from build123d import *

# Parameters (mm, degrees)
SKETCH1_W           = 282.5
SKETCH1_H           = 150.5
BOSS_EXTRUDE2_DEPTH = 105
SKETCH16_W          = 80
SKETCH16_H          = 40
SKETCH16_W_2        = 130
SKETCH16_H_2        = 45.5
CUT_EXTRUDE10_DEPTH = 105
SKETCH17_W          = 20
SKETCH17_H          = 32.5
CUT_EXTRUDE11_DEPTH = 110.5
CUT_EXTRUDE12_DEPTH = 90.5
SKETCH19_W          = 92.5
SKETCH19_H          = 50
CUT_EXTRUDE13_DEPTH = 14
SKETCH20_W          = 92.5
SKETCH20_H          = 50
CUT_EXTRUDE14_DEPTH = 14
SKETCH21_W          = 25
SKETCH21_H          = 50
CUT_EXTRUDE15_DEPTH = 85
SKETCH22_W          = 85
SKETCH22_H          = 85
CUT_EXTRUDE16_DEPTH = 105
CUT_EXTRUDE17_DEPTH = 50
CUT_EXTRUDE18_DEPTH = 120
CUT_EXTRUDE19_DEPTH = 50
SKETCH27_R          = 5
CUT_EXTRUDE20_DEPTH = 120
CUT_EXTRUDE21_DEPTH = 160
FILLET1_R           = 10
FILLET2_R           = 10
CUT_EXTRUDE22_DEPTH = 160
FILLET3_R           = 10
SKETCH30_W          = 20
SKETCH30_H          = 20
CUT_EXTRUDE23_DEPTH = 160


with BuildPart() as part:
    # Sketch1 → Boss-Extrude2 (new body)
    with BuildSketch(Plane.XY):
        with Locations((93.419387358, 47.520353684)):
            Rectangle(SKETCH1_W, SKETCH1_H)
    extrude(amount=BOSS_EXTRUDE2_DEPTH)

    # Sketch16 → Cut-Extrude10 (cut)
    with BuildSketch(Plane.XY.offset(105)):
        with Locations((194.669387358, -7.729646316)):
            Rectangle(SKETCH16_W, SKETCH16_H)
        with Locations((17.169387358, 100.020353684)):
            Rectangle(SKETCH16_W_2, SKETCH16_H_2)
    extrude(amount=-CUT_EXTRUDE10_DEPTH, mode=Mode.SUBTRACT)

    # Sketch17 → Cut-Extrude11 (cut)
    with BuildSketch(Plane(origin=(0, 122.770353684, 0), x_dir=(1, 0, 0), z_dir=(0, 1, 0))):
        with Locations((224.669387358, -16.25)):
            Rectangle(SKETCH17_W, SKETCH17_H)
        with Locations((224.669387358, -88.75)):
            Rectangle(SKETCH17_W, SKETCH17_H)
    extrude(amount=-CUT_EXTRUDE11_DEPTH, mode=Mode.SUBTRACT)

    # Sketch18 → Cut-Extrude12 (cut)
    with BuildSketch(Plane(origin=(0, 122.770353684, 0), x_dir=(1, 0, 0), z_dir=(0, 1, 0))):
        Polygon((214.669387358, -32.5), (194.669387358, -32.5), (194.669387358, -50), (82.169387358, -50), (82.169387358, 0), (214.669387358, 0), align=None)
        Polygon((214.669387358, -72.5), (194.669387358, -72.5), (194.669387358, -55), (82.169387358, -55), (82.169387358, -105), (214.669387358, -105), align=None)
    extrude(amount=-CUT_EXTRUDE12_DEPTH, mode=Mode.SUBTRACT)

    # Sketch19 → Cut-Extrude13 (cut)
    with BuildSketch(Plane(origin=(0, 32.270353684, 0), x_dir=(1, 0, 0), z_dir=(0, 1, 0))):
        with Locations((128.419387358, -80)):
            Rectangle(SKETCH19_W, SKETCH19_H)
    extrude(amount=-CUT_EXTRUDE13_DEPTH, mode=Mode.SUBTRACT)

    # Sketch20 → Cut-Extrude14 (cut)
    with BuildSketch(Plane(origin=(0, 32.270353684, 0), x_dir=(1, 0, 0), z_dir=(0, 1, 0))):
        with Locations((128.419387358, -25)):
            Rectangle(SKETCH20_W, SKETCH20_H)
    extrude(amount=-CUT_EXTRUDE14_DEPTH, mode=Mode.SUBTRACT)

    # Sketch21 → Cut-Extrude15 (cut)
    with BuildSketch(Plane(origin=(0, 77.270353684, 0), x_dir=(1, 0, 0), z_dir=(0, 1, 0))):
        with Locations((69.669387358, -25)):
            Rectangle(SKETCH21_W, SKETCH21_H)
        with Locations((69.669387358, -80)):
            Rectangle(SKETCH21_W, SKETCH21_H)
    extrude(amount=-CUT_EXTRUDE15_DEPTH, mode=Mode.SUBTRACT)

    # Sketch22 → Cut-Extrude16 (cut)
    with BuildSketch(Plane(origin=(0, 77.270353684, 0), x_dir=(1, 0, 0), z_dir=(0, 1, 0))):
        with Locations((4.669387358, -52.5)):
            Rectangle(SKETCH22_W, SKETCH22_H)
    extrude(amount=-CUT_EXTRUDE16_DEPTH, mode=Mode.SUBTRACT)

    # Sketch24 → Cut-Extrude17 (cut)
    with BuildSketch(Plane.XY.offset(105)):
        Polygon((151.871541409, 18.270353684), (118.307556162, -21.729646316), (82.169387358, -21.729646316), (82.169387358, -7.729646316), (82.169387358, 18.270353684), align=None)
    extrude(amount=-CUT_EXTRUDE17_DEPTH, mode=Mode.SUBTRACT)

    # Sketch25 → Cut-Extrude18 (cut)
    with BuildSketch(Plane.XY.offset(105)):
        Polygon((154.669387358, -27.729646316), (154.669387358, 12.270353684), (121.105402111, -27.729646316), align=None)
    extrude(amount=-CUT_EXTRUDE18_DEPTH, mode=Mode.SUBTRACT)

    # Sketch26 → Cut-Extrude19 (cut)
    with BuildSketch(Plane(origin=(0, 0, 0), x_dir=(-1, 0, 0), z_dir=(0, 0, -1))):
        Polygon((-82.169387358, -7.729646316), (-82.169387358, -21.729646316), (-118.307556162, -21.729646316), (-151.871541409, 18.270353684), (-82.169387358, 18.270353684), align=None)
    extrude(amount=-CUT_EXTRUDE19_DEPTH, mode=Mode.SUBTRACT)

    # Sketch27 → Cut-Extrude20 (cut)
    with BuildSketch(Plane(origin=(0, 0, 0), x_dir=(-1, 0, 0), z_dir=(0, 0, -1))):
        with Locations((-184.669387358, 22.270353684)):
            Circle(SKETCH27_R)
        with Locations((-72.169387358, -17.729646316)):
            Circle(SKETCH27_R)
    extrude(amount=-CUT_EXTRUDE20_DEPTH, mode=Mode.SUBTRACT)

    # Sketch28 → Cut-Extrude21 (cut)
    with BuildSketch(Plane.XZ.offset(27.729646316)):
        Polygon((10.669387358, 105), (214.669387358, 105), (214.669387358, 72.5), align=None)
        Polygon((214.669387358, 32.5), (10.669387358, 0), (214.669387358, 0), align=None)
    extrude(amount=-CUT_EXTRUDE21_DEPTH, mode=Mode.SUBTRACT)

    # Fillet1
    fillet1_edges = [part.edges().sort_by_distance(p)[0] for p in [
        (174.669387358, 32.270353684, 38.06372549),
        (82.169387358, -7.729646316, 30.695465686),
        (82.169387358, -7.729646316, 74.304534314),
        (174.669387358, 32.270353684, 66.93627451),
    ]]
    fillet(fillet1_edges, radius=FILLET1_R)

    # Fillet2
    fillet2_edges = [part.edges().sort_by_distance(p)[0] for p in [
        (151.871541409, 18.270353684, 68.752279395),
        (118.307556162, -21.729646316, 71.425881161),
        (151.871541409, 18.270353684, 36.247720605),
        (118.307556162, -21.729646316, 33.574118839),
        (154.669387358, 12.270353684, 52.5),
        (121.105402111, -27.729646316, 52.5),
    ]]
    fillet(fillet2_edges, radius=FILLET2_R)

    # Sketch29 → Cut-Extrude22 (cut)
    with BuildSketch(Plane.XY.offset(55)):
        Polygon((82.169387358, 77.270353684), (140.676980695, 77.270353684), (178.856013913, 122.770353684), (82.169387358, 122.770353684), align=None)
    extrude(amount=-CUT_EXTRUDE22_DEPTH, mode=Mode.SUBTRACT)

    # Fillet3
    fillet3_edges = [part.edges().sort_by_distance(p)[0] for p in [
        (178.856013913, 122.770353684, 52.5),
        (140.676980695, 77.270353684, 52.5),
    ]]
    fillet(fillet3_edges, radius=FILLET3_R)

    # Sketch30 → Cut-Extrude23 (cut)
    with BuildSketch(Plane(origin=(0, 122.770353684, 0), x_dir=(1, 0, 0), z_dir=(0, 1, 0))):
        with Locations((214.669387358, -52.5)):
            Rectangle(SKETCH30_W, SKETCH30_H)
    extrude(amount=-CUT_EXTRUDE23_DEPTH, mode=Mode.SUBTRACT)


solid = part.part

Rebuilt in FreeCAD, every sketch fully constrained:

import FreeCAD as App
import Part
import Sketcher
Q = App.Units.Quantity


def edges_at(feature, points):
    """Names of the edges that pass closest to the given points."""
    edges = feature.Shape.Edges
    near = lambda p: min(range(len(edges)), key=lambda i: edges[i].distToShape(Part.Vertex(*p))[0])
    return sorted({f"Edge{near(p) + 1}" for p in points})


def add_polygon(sketch, points):
    """Adds a closed chain of lines whose ends are joined by coincident constraints."""
    first, n = sketch.GeometryCount, len(points)
    for a, b in zip(points, points[1:] + points[:1]):
        sketch.addGeometry(Part.LineSegment(App.Vector(*a, 0), App.Vector(*b, 0)), False)
    for i in range(n):
        sketch.addConstraint(Sketcher.Constraint("Coincident", first + i, 2, first + (i + 1) % n, 1))

doc = App.newDocument("Part")
params = doc.addObject("Spreadsheet::Sheet", "Params")
for row, (alias, value) in enumerate([
    ("sketch1_width", "282.5 mm"),
    ("sketch1_height", "150.5 mm"),
    ("pad1_length", "105 mm"),
    ("sketch2_width", "80 mm"),
    ("sketch2_width2", "130 mm"),
    ("sketch2_height", "40 mm"),
    ("sketch2_height2", "45.5 mm"),
    ("pocket1_length", "105 mm"),
    ("sketch3_width", "20 mm"),
    ("sketch3_height", "32.5 mm"),
    ("pocket2_length", "110.5 mm"),
    ("sketch4_width", "20 mm"),
    ("sketch4_height", "50 mm"),
    ("sketch4_width2", "132.5 mm"),
    ("sketch4_height2", "32.5 mm"),
    ("pocket3_length", "90.5 mm"),
    ("sketch5_height", "50 mm"),
    ("sketch5_width", "92.5 mm"),
    ("pocket4_length", "14 mm"),
    ("sketch6_height", "50 mm"),
    ("sketch6_width", "92.5 mm"),
    ("pocket5_length", "14 mm"),
    ("sketch7_width", "25 mm"),
    ("sketch7_height", "50 mm"),
    ("pocket6_length", "85 mm"),
    ("sketch8_width", "85 mm"),
    ("pocket7_length", "105 mm"),
    ("sketch9_height", "40 mm"),
    ("pocket8_length", "50 mm"),
    ("sketch10_height", "40 mm"),
    ("pocket9_length", "120 mm"),
    ("sketch11_height", "40 mm"),
    ("pocket10_length", "50 mm"),
    ("sketch12_diameter", "10 mm"),
    ("pocket11_length", "120 mm"),
    ("sketch13_width", "204 mm"),
    ("sketch13_height", "32.5 mm"),
    ("pocket12_length", "160 mm"),
    ("fillet_radius", "10 mm"),
    ("fillet2_radius", "10 mm"),
    ("sketch14_height", "45.5 mm"),
    ("pocket13_length", "160 mm"),
    ("fillet3_radius", "10 mm"),
    ("sketch15_width", "20 mm"),
    ("pocket14_length", "160 mm"),
], start=1):
    params.set(f"A{row}", alias)
    params.set(f"B{row}", "=" + value)
    params.setAlias(f"B{row}", alias)

body = doc.addObject("PartDesign::Body", "Body")

# Sketch on XY plane
sketch1 = body.newObject("Sketcher::SketchObject", "Sketch")
sketch1.AttachmentSupport = (doc.getObject("XY_Plane"), [""])
sketch1.MapMode = "FlatFace"
add_polygon(sketch1, [(-47.830613, 122.770354), (-47.830613, -27.729646), (234.669387, -27.729646), (234.669387, 122.770354)])  # lines 0-3
sketch1.addConstraint([
    Sketcher.Constraint("Vertical", 0),
    Sketcher.Constraint("Horizontal", 1),
    Sketcher.Constraint("Vertical", 2),
    Sketcher.Constraint("Horizontal", 3),
    Sketcher.Constraint("DistanceX", 1, 1, 1, 2, 282.5),
    Sketcher.Constraint("DistanceY", 0, 2, 0, 1, 150.5),
    Sketcher.Constraint("DistanceX", 0, 2, -1, 1, 47.830613),
    Sketcher.Constraint("DistanceY", 0, 2, -1, 1, 27.729646),
])
sketch1.setExpression("Constraints[8]", "Params.sketch1_width")
sketch1.setExpression("Constraints[9]", "Params.sketch1_height")
pad1 = body.newObject("PartDesign::Pad", "Pad")
pad1.Profile = sketch1
pad1.setExpression("Length", "Params.pad1_length")

# Sketch on XY plane
sketch2 = body.newObject("Sketcher::SketchObject", "Sketch001")
sketch2.AttachmentSupport = (doc.getObject("XY_Plane"), [""])
sketch2.MapMode = "FlatFace"
sketch2.AttachmentOffset = App.Placement(App.Vector(0, 0, 105), App.Rotation())
add_polygon(sketch2, [(154.669387, 12.270354), (154.669387, -27.729646), (234.669387, -27.729646), (234.669387, 12.270354)])  # lines 0-3
add_polygon(sketch2, [(-47.830613, 122.770354), (-47.830613, 77.270354), (82.169387, 77.270354), (82.169387, 122.770354)])  # lines 4-7
sketch2.addConstraint([
    Sketcher.Constraint("Vertical", 0),
    Sketcher.Constraint("Horizontal", 1),
    Sketcher.Constraint("Vertical", 2),
    Sketcher.Constraint("Horizontal", 3),
    Sketcher.Constraint("Vertical", 4),
    Sketcher.Constraint("Horizontal", 5),
    Sketcher.Constraint("Vertical", 6),
    Sketcher.Constraint("Horizontal", 7),
    Sketcher.Constraint("DistanceX", 1, 1, 1, 2, 80.0),
    Sketcher.Constraint("DistanceX", 5, 1, 5, 2, 130.0),
    Sketcher.Constraint("DistanceY", 0, 2, 0, 1, 40.0),
    Sketcher.Constraint("DistanceY", 4, 2, 4, 1, 45.5),
    Sketcher.Constraint("DistanceY", 3, 2, 4, 2, 65.0),
    Sketcher.Constraint("DistanceX", 4, 2, 3, 2, 202.5),
    Sketcher.Constraint("DistanceX", -1, 1, 0, 2, 154.669387),
    Sketcher.Constraint("DistanceY", 0, 2, -1, 1, 27.729646),
])
sketch2.setExpression("Constraints[16]", "Params.sketch2_width")
sketch2.setExpression("Constraints[17]", "Params.sketch2_width2")
sketch2.setExpression("Constraints[18]", "Params.sketch2_height")
sketch2.setExpression("Constraints[19]", "Params.sketch2_height2")
pocket1 = body.newObject("PartDesign::Pocket", "Pocket")
pocket1.Profile = sketch2
pocket1.setExpression("Length", "Params.pocket1_length")

# Sketch on XZ plane
sketch3 = body.newObject("Sketcher::SketchObject", "Sketch002")
sketch3.AttachmentSupport = (doc.getObject("XZ_Plane"), [""])
sketch3.MapMode = "FlatFace"
sketch3.AttachmentOffset = App.Placement(App.Vector(0, 0, -122.770354), App.Rotation())
add_polygon(sketch3, [(214.669387, 0), (214.669387, 32.5), (234.669387, 32.5), (234.669387, 0)])  # lines 0-3
add_polygon(sketch3, [(214.669387, 72.5), (214.669387, 105), (234.669387, 105), (234.669387, 72.5)])  # lines 4-7
sketch3.addConstraint([
    Sketcher.Constraint("Vertical", 0),
    Sketcher.Constraint("Horizontal", 1),
    Sketcher.Constraint("Vertical", 2),
    Sketcher.Constraint("Horizontal", 3),
    Sketcher.Constraint("Vertical", 4),
    Sketcher.Constraint("Horizontal", 5),
    Sketcher.Constraint("Vertical", 6),
    Sketcher.Constraint("Horizontal", 7),
    Sketcher.Constraint("PointOnObject", 2, 2, -1),
    Sketcher.Constraint("Vertical", 3, 2, 4, 2),
    Sketcher.Constraint("Vertical", 2, 2, 5, 2),
    Sketcher.Constraint("Equal", 2, 4),
    Sketcher.Constraint("DistanceX", 1, 1, 1, 2, 20.0),
    Sketcher.Constraint("DistanceY", 0, 1, 0, 2, 32.5),
    Sketcher.Constraint("DistanceY", -1, 1, 4, 2, 105.0),
    Sketcher.Constraint("DistanceX", -1, 1, 0, 2, 214.669387),
])
sketch3.setExpression("Constraints[20]", "Params.sketch3_width")
sketch3.setExpression("Constraints[21]", "Params.sketch3_height")
pocket2 = body.newObject("PartDesign::Pocket", "Pocket001")
pocket2.Profile = sketch3
pocket2.setExpression("Length", "Params.pocket2_length")
pocket2.Reversed = True

# Sketch on XZ plane
sketch4 = body.newObject("Sketcher::SketchObject", "Sketch003")
sketch4.AttachmentSupport = (doc.getObject("XZ_Plane"), [""])
sketch4.MapMode = "FlatFace"
sketch4.AttachmentOffset = App.Placement(App.Vector(0, 0, -122.770354), App.Rotation())
add_polygon(sketch4, [(194.669387, 32.5), (214.669387, 32.5), (214.669387, 0), (82.169387, 0), (82.169387, 50), (194.669387, 50)])  # lines 0-5
add_polygon(sketch4, [(214.669387, 72.5), (194.669387, 72.5), (194.669387, 55), (82.169387, 55), (82.169387, 105), (214.669387, 105)])  # lines 6-11
sketch4.addConstraint([
    Sketcher.Constraint("Horizontal", 0),
    Sketcher.Constraint("Vertical", 1),
    Sketcher.Constraint("Horizontal", 2),
    Sketcher.Constraint("Vertical", 3),
    Sketcher.Constraint("Horizontal", 4),
    Sketcher.Constraint("Vertical", 5),
    Sketcher.Constraint("Horizontal", 6),
    Sketcher.Constraint("Vertical", 7),
    Sketcher.Constraint("Horizontal", 8),
    Sketcher.Constraint("Vertical", 9),
    Sketcher.Constraint("Horizontal", 10),
    Sketcher.Constraint("Vertical", 11),
    Sketcher.Constraint("PointOnObject", 1, 2, -1),
    Sketcher.Constraint("Vertical", 5, 2, 6, 2),
    Sketcher.Constraint("Vertical", 3, 2, 8, 2),
    Sketcher.Constraint("Vertical", 1, 2, 10, 2),
    Sketcher.Constraint("Equal", 5, 7),
    Sketcher.Constraint("Equal", 3, 9),
    Sketcher.Constraint("DistanceX", 0, 1, 0, 2, 20.0),
    Sketcher.Constraint("DistanceY", 3, 1, 3, 2, 50.0),
    Sketcher.Constraint("DistanceX", 2, 2, 2, 1, 132.5),
    Sketcher.Constraint("DistanceY", 1, 2, 1, 1, 32.5),
    Sketcher.Constraint("DistanceY", -1, 1, 7, 2, 55.0),
    Sketcher.Constraint("DistanceX", -1, 1, 0, 2, 214.669387),
])
sketch4.setExpression("Constraints[30]", "Params.sketch4_width")
sketch4.setExpression("Constraints[31]", "Params.sketch4_height")
sketch4.setExpression("Constraints[32]", "Params.sketch4_width2")
sketch4.setExpression("Constraints[33]", "Params.sketch4_height2")
pocket3 = body.newObject("PartDesign::Pocket", "Pocket002")
pocket3.Profile = sketch4
pocket3.setExpression("Length", "Params.pocket3_length")
pocket3.Reversed = True

# Sketch on XZ plane
sketch5 = body.newObject("Sketcher::SketchObject", "Sketch004")
sketch5.AttachmentSupport = (doc.getObject("XZ_Plane"), [""])
sketch5.MapMode = "FlatFace"
sketch5.AttachmentOffset = App.Placement(App.Vector(0, 0, -32.270354), App.Rotation())
add_polygon(sketch5, [(82.169387, 55), (82.169387, 105), (174.669387, 105), (174.669387, 55)])  # lines 0-3
sketch5.addConstraint([
    Sketcher.Constraint("Vertical", 0),
    Sketcher.Constraint("Horizontal", 1),
    Sketcher.Constraint("Vertical", 2),
    Sketcher.Constraint("Horizontal", 3),
    Sketcher.Constraint("DistanceY", 0, 1, 0, 2, 50.0),
    Sketcher.Constraint("DistanceX", 1, 1, 1, 2, 92.5),
    Sketcher.Constraint("DistanceY", -1, 1, 0, 2, 105.0),
    Sketcher.Constraint("DistanceX", -1, 1, 0, 2, 82.169387),
])
sketch5.setExpression("Constraints[8]", "Params.sketch5_height")
sketch5.setExpression("Constraints[9]", "Params.sketch5_width")
pocket4 = body.newObject("PartDesign::Pocket", "Pocket003")
pocket4.Profile = sketch5
pocket4.setExpression("Length", "Params.pocket4_length")
pocket4.Reversed = True

# Sketch on XZ plane
sketch6 = body.newObject("Sketcher::SketchObject", "Sketch005")
sketch6.AttachmentSupport = (doc.getObject("XZ_Plane"), [""])
sketch6.MapMode = "FlatFace"
sketch6.AttachmentOffset = App.Placement(App.Vector(0, 0, -32.270354), App.Rotation())
add_polygon(sketch6, [(82.169387, 0), (82.169387, 50), (174.669387, 50), (174.669387, 0)])  # lines 0-3
sketch6.addConstraint([
    Sketcher.Constraint("Vertical", 0),
    Sketcher.Constraint("Horizontal", 1),
    Sketcher.Constraint("Vertical", 2),
    Sketcher.Constraint("Horizontal", 3),
    Sketcher.Constraint("PointOnObject", 2, 2, -1),
    Sketcher.Constraint("DistanceY", 0, 1, 0, 2, 50.0),
    Sketcher.Constraint("DistanceX", 1, 1, 1, 2, 92.5),
    Sketcher.Constraint("DistanceX", -1, 1, 0, 2, 82.169387),
])
sketch6.setExpression("Constraints[9]", "Params.sketch6_height")
sketch6.setExpression("Constraints[10]", "Params.sketch6_width")
pocket5 = body.newObject("PartDesign::Pocket", "Pocket004")
pocket5.Profile = sketch6
pocket5.setExpression("Length", "Params.pocket5_length")
pocket5.Reversed = True

# Sketch on XZ plane
sketch7 = body.newObject("Sketcher::SketchObject", "Sketch006")
sketch7.AttachmentSupport = (doc.getObject("XZ_Plane"), [""])
sketch7.MapMode = "FlatFace"
sketch7.AttachmentOffset = App.Placement(App.Vector(0, 0, -77.270354), App.Rotation())
add_polygon(sketch7, [(57.169387, 0), (57.169387, 50), (82.169387, 50), (82.169387, 0)])  # lines 0-3
add_polygon(sketch7, [(57.169387, 55), (57.169387, 105), (82.169387, 105), (82.169387, 55)])  # lines 4-7
sketch7.addConstraint([
    Sketcher.Constraint("Vertical", 0),
    Sketcher.Constraint("Horizontal", 1),
    Sketcher.Constraint("Vertical", 2),
    Sketcher.Constraint("Horizontal", 3),
    Sketcher.Constraint("Vertical", 4),
    Sketcher.Constraint("Horizontal", 5),
    Sketcher.Constraint("Vertical", 6),
    Sketcher.Constraint("Horizontal", 7),
    Sketcher.Constraint("PointOnObject", 2, 2, -1),
    Sketcher.Constraint("Vertical", 3, 2, 4, 2),
    Sketcher.Constraint("Vertical", 2, 2, 5, 2),
    Sketcher.Constraint("Equal", 2, 4),
    Sketcher.Constraint("DistanceX", 1, 1, 1, 2, 25.0),
    Sketcher.Constraint("DistanceY", 0, 1, 0, 2, 50.0),
    Sketcher.Constraint("DistanceY", -1, 1, 4, 2, 105.0),
    Sketcher.Constraint("DistanceX", -1, 1, 0, 2, 57.169387),
])
sketch7.setExpression("Constraints[20]", "Params.sketch7_width")
sketch7.setExpression("Constraints[21]", "Params.sketch7_height")
pocket6 = body.newObject("PartDesign::Pocket", "Pocket005")
pocket6.Profile = sketch7
pocket6.setExpression("Length", "Params.pocket6_length")
pocket6.Reversed = True

# Sketch on XZ plane
sketch8 = body.newObject("Sketcher::SketchObject", "Sketch007")
sketch8.AttachmentSupport = (doc.getObject("XZ_Plane"), [""])
sketch8.MapMode = "FlatFace"
sketch8.AttachmentOffset = App.Placement(App.Vector(0, 0, -77.270354), App.Rotation())
add_polygon(sketch8, [(-37.830613, 10), (-37.830613, 95), (47.169387, 95), (47.169387, 10)])  # lines 0-3
sketch8.addConstraint([
    Sketcher.Constraint("Vertical", 0),
    Sketcher.Constraint("Horizontal", 1),
    Sketcher.Constraint("Vertical", 2),
    Sketcher.Constraint("Horizontal", 3),
    Sketcher.Constraint("Equal", 3, 0),
    Sketcher.Constraint("DistanceX", 1, 1, 1, 2, 85.0),
    Sketcher.Constraint("DistanceY", -1, 1, 0, 2, 95.0),
    Sketcher.Constraint("DistanceX", 0, 2, -1, 1, 37.830613),
])
sketch8.setExpression("Constraints[9]", "Params.sketch8_width")
pocket7 = body.newObject("PartDesign::Pocket", "Pocket006")
pocket7.Profile = sketch8
pocket7.setExpression("Length", "Params.pocket7_length")
pocket7.Reversed = True

# Sketch on XY plane
sketch9 = body.newObject("Sketcher::SketchObject", "Sketch008")
sketch9.AttachmentSupport = (doc.getObject("XY_Plane"), [""])
sketch9.MapMode = "FlatFace"
sketch9.AttachmentOffset = App.Placement(App.Vector(0, 0, 105), App.Rotation())
add_polygon(sketch9, [(118.307556, -21.729646), (151.871541, 18.270354), (82.169387, 18.270354), (82.169387, -21.729646)])  # lines 0-3
sketch9.addConstraint([
    Sketcher.Constraint("Horizontal", 1),
    Sketcher.Constraint("Vertical", 2),
    Sketcher.Constraint("Horizontal", 3),
    Sketcher.Constraint("DistanceY", 2, 2, 2, 1, 40.0),
    Sketcher.Constraint("Angle", 0, Q("50 deg")),
    Sketcher.Constraint("DistanceX", 3, 1, 3, 2, 36.138169),
    Sketcher.Constraint("DistanceX", -1, 1, 0, 2, 151.871541),
    Sketcher.Constraint("DistanceY", -1, 1, 0, 2, 18.270354),
])
sketch9.setExpression("Constraints[7]", "Params.sketch9_height")
pocket8 = body.newObject("PartDesign::Pocket", "Pocket007")
pocket8.Profile = sketch9
pocket8.setExpression("Length", "Params.pocket8_length")

# Sketch on XY plane
sketch10 = body.newObject("Sketcher::SketchObject", "Sketch009")
sketch10.AttachmentSupport = (doc.getObject("XY_Plane"), [""])
sketch10.MapMode = "FlatFace"
sketch10.AttachmentOffset = App.Placement(App.Vector(0, 0, 105), App.Rotation())
add_polygon(sketch10, [(154.669387, -27.729646), (154.669387, 12.270354), (121.105402, -27.729646)])  # lines 0-2
sketch10.addConstraint([
    Sketcher.Constraint("Vertical", 0),
    Sketcher.Constraint("Horizontal", 2),
    Sketcher.Constraint("DistanceY", 0, 1, 0, 2, 40.0),
    Sketcher.Constraint("Angle", 1, Q("-130 deg")),
    Sketcher.Constraint("DistanceX", -1, 1, 0, 2, 154.669387),
    Sketcher.Constraint("DistanceY", -1, 1, 0, 2, 12.270354),
])
sketch10.setExpression("Constraints[5]", "Params.sketch10_height")
pocket9 = body.newObject("PartDesign::Pocket", "Pocket008")
pocket9.Profile = sketch10
pocket9.setExpression("Length", "Params.pocket9_length")

# Sketch on XY plane
sketch11 = body.newObject("Sketcher::SketchObject", "Sketch010")
sketch11.AttachmentSupport = (doc.getObject("XY_Plane"), [""])
sketch11.MapMode = "FlatFace"
add_polygon(sketch11, [(82.169387, -21.729646), (82.169387, 18.270354), (151.871541, 18.270354), (118.307556, -21.729646)])  # lines 0-3
sketch11.addConstraint([
    Sketcher.Constraint("Vertical", 0),
    Sketcher.Constraint("Horizontal", 1),
    Sketcher.Constraint("Horizontal", 3),
    Sketcher.Constraint("DistanceY", 0, 1, 0, 2, 40.0),
    Sketcher.Constraint("Angle", 2, Q("-130 deg")),
    Sketcher.Constraint("DistanceX", 3, 2, 3, 1, 36.138169),
    Sketcher.Constraint("DistanceX", -1, 1, 1, 2, 151.871541),
    Sketcher.Constraint("DistanceY", -1, 1, 0, 2, 18.270354),
])
sketch11.setExpression("Constraints[7]", "Params.sketch11_height")
pocket10 = body.newObject("PartDesign::Pocket", "Pocket009")
pocket10.Profile = sketch11
pocket10.setExpression("Length", "Params.pocket10_length")
pocket10.Reversed = True

# Sketch on XY plane
sketch12 = body.newObject("Sketcher::SketchObject", "Sketch011")
sketch12.AttachmentSupport = (doc.getObject("XY_Plane"), [""])
sketch12.MapMode = "FlatFace"
sketch12.addGeometry([
    Part.Circle(App.Vector(184.669387, 22.270354, 0), App.Vector(0, 0, 1), 5),
    Part.Circle(App.Vector(72.169387, -17.729646, 0), App.Vector(0, 0, 1), 5),
], False)
sketch12.addConstraint([
    Sketcher.Constraint("Equal", 0, 1),
    Sketcher.Constraint("Diameter", 0, 10.0),
    Sketcher.Constraint("DistanceY", 1, 3, 0, 3, 40.0),
    Sketcher.Constraint("DistanceX", 1, 3, 0, 3, 112.5),
    Sketcher.Constraint("DistanceX", -1, 1, 0, 3, 184.669387),
    Sketcher.Constraint("DistanceY", -1, 1, 0, 3, 22.270354),
])
sketch12.setExpression("Constraints[1]", "Params.sketch12_diameter")
pocket11 = body.newObject("PartDesign::Pocket", "Pocket010")
pocket11.Profile = sketch12
pocket11.setExpression("Length", "Params.pocket11_length")
pocket11.Reversed = True

# Sketch on XZ plane
sketch13 = body.newObject("Sketcher::SketchObject", "Sketch012")
sketch13.AttachmentSupport = (doc.getObject("XZ_Plane"), [""])
sketch13.MapMode = "FlatFace"
sketch13.AttachmentOffset = App.Placement(App.Vector(0, 0, 27.729646), App.Rotation())
add_polygon(sketch13, [(214.669387, 105), (10.669387, 105), (214.669387, 72.5)])  # lines 0-2
add_polygon(sketch13, [(214.669387, 32.5), (10.669387, 0), (214.669387, 0)])  # lines 3-5
sketch13.addConstraint([
    Sketcher.Constraint("Horizontal", 0),
    Sketcher.Constraint("Vertical", 2),
    Sketcher.Constraint("Horizontal", 4),
    Sketcher.Constraint("Vertical", 5),
    Sketcher.Constraint("PointOnObject", 3, 2, -1),
    Sketcher.Constraint("Vertical", 0, 2, 3, 2),
    Sketcher.Constraint("Vertical", 2, 2, 4, 2),
    Sketcher.Constraint("Equal", 2, 5),
    Sketcher.Constraint("DistanceX", 0, 2, 0, 1, 204.0),
    Sketcher.Constraint("DistanceY", 2, 1, 2, 2, 32.5),
    Sketcher.Constraint("DistanceY", -1, 1, 0, 2, 105.0),
    Sketcher.Constraint("DistanceX", -1, 1, 0, 2, 10.669387),
])
sketch13.setExpression("Constraints[14]", "Params.sketch13_width")
sketch13.setExpression("Constraints[15]", "Params.sketch13_height")
pocket12 = body.newObject("PartDesign::Pocket", "Pocket011")
pocket12.Profile = sketch13
pocket12.setExpression("Length", "Params.pocket12_length")
doc.recompute()

fillet = body.newObject("PartDesign::Fillet", "Fillet")
fillet.Base = (pocket12, edges_at(pocket12, [
    (174.669, 32.27, 38.064),
    (82.169, -7.73, 30.695),
    (82.169, -7.73, 74.305),
    (174.669, 32.27, 66.936),
]))
fillet.setExpression("Radius", "Params.fillet_radius")
doc.recompute()

fillet2 = body.newObject("PartDesign::Fillet", "Fillet001")
fillet2.Base = (fillet, edges_at(fillet, [
    (151.872, 18.27, 68.752),
    (118.308, -21.73, 71.426),
    (151.872, 18.27, 36.248),
    (118.308, -21.73, 33.574),
    (154.669, 12.27, 52.5),
    (121.105, -27.73, 52.5),
]))
fillet2.setExpression("Radius", "Params.fillet2_radius")

# Sketch on XY plane
sketch14 = body.newObject("Sketcher::SketchObject", "Sketch013")
sketch14.AttachmentSupport = (doc.getObject("XY_Plane"), [""])
sketch14.MapMode = "FlatFace"
sketch14.AttachmentOffset = App.Placement(App.Vector(0, 0, 55), App.Rotation())
add_polygon(sketch14, [(82.169387, 77.270354), (140.676981, 77.270354), (178.856014, 122.770354), (82.169387, 122.770354)])  # lines 0-3
sketch14.addConstraint([
    Sketcher.Constraint("Horizontal", 0),
    Sketcher.Constraint("Horizontal", 2),
    Sketcher.Constraint("Vertical", 3),
    Sketcher.Constraint("Angle", 1, Q("50 deg")),
    Sketcher.Constraint("DistanceY", 3, 2, 3, 1, 45.5),
    Sketcher.Constraint("DistanceX", 0, 1, 0, 2, 58.507593),
    Sketcher.Constraint("DistanceX", -1, 1, 0, 2, 140.676981),
    Sketcher.Constraint("DistanceY", -1, 1, 0, 2, 77.270354),
])
sketch14.setExpression("Constraints[8]", "Params.sketch14_height")
pocket13 = body.newObject("PartDesign::Pocket", "Pocket012")
pocket13.Profile = sketch14
pocket13.setExpression("Length", "Params.pocket13_length")
doc.recompute()

fillet3 = body.newObject("PartDesign::Fillet", "Fillet002")
fillet3.Base = (pocket13, edges_at(pocket13, [(178.856, 122.77, 52.5), (140.677, 77.27, 52.5)]))
fillet3.setExpression("Radius", "Params.fillet3_radius")

# Sketch on XZ plane
sketch15 = body.newObject("Sketcher::SketchObject", "Sketch014")
sketch15.AttachmentSupport = (doc.getObject("XZ_Plane"), [""])
sketch15.MapMode = "FlatFace"
sketch15.AttachmentOffset = App.Placement(App.Vector(0, 0, -122.770354), App.Rotation())
add_polygon(sketch15, [(204.669387, 42.5), (204.669387, 62.5), (224.669387, 62.5), (224.669387, 42.5)])  # lines 0-3
sketch15.addConstraint([
    Sketcher.Constraint("Vertical", 0),
    Sketcher.Constraint("Horizontal", 1),
    Sketcher.Constraint("Vertical", 2),
    Sketcher.Constraint("Horizontal", 3),
    Sketcher.Constraint("Equal", 3, 0),
    Sketcher.Constraint("DistanceX", 1, 1, 1, 2, 20.0),
    Sketcher.Constraint("DistanceY", -1, 1, 0, 2, 62.5),
    Sketcher.Constraint("DistanceX", -1, 1, 0, 2, 204.669387),
])
sketch15.setExpression("Constraints[9]", "Params.sketch15_width")
pocket14 = body.newObject("PartDesign::Pocket", "Pocket013")
pocket14.Profile = sketch15
pocket14.setExpression("Length", "Params.pocket14_length")
pocket14.Reversed = True

doc.recompute()
